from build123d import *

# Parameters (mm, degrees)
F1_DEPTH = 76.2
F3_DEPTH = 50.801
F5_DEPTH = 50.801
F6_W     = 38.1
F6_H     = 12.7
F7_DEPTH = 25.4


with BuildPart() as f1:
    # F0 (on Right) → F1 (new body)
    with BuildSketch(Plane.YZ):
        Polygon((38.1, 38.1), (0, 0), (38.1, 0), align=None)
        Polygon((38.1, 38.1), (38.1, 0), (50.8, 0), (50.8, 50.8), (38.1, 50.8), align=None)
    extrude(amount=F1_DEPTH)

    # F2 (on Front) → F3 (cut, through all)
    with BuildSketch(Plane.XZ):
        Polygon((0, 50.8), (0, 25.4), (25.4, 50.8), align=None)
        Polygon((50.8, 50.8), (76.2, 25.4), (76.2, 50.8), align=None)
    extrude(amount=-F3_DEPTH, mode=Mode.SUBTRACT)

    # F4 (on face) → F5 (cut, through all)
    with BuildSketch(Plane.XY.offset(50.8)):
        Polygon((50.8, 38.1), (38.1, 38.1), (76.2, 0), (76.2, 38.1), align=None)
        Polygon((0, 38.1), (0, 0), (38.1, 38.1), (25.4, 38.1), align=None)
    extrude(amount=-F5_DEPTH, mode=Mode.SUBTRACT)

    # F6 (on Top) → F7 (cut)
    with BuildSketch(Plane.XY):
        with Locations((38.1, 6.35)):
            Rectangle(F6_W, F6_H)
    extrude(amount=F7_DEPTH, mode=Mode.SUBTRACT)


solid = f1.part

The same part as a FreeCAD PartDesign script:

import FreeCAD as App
import Part
import Sketcher
Q = App.Units.Quantity


def add_polygon(sketch, points):
    """Adds a closed chain of lines whose ends are joined by coincident constraints."""
    first, n = sketch.GeometryCount, len(points)
    for a, b in zip(points, points[1:] + points[:1]):
        sketch.addGeometry(Part.LineSegment(App.Vector(*a, 0), App.Vector(*b, 0)), False)
    for i in range(n):
        sketch.addConstraint(Sketcher.Constraint("Coincident", first + i, 2, first + (i + 1) % n, 1))

doc = App.newDocument("Part")
body = doc.addObject("PartDesign::Body", "Body")
body.AllowCompound = True

# Sketch on YZ plane
sketch1 = body.newObject("Sketcher::SketchObject", "Sketch")
sketch1.AttachmentSupport = (doc.getObject("YZ_Plane"), [""])
sketch1.MapMode = "FlatFace"
add_polygon(sketch1, [(38, 38), (0, 0), (51, 0), (51, 51), (38, 51)])  # lines 0-4
sketch1.addConstraint([
    Sketcher.Constraint("Horizontal", 1),
    Sketcher.Constraint("Vertical", 2),
    Sketcher.Constraint("Horizontal", 3),
    Sketcher.Constraint("Vertical", 4),
    Sketcher.Constraint("Coincident", 0, 2, -1, 1),
    Sketcher.Constraint("Equal", 1, 2),
    Sketcher.Constraint("Equal", 3, 4),
    Sketcher.Constraint("DistanceX", 1, 1, 1, 2, Q("2 in")),
    Sketcher.Constraint("DistanceX", 3, 2, 3, 1, Q("0.5 in")),
])
pad1 = body.newObject("PartDesign::Pad", "Pad")
pad1.Profile = sketch1
pad1.Length = Q("3 in")

# Sketch on XZ plane
sketch2 = body.newObject("Sketcher::SketchObject", "Sketch001")
sketch2.AttachmentSupport = (doc.getObject("XZ_Plane"), [""])
sketch2.MapMode = "FlatFace"
add_polygon(sketch2, [(0, 51), (0, 25), (25, 51)])  # lines 0-2
add_polygon(sketch2, [(51, 51), (76, 25), (76, 51)])  # lines 3-5
sketch2.addConstraint([
    Sketcher.Constraint("Vertical", 0),
    Sketcher.Constraint("Horizontal", 2),
    Sketcher.Constraint("Vertical", 4),
    Sketcher.Constraint("Horizontal", 5),
    Sketcher.Constraint("PointOnObject", 0, 2, -2),
    Sketcher.Constraint("Perpendicular", 1, 3),
    Sketcher.Constraint("Horizontal", 0, 2, 3, 2),
    Sketcher.Constraint("Horizontal", 2, 2, 4, 2),
    Sketcher.Constraint("Equal", 2, 5),
    Sketcher.Constraint("DistanceX", 2, 2, 2, 1, Q("1 in")),
    Sketcher.Constraint("DistanceY", -1, 1, 0, 2, Q("1 in")),
    Sketcher.Constraint("DistanceX", -1, 1, 3, 2, Q("3 in")),
])
pocket1 = body.newObject("PartDesign::Pocket", "Pocket")
pocket1.Profile = sketch2
pocket1.Type = "ThroughAll"

# Sketch on XY plane
sketch3 = body.newObject("Sketcher::SketchObject", "Sketch002")
sketch3.AttachmentSupport = (doc.getObject("XY_Plane"), [""])
sketch3.MapMode = "FlatFace"
sketch3.AttachmentOffset = App.Placement(App.Vector(0, 0, 2 * 25.4), App.Rotation())
add_polygon(sketch3, [(38, 38), (76, 0), (76, 38)])  # lines 0-2
add_polygon(sketch3, [(0, 38), (0, 0), (38, 38)])  # lines 3-5
sketch3.addConstraint([
    Sketcher.Constraint("Vertical", 1),
    Sketcher.Constraint("Horizontal", 2),
    Sketcher.Constraint("Vertical", 3),
    Sketcher.Constraint("Horizontal", 5),
    Sketcher.Constraint("Coincident", 3, 2, -1, 1),
    Sketcher.Constraint("Coincident", 4, 2, 2, 2),
    Sketcher.Constraint("PointOnObject", 0, 2, -1),
    Sketcher.Constraint("Perpendicular", 0, 4),
    Sketcher.Constraint("Equal", 2, 5),
    Sketcher.Constraint("DistanceX", 2, 2, 2, 1, Q("1.5 in")),
])
pocket2 = body.newObject("PartDesign::Pocket", "Pocket001")
pocket2.Profile = sketch3
pocket2.Type = "ThroughAll"

# Sketch on XY plane
sketch4 = body.newObject("Sketcher::SketchObject", "Sketch003")
sketch4.AttachmentSupport = (doc.getObject("XY_Plane"), [""])
sketch4.MapMode = "FlatFace"
add_polygon(sketch4, [(19, 13), (19, 0), (57, 0), (57, 13)])  # lines 0-3
sketch4.addConstraint([
    Sketcher.Constraint("Vertical", 0),
    Sketcher.Constraint("Horizontal", 1),
    Sketcher.Constraint("Vertical", 2),
    Sketcher.Constraint("Horizontal", 3),
    Sketcher.Constraint("PointOnObject", 0, 2, -1),
    Sketcher.Constraint("DistanceX", 1, 1, 1, 2, Q("1.5 in")),
    Sketcher.Constraint("DistanceY", 0, 2, 0, 1, Q("0.5 in")),
    Sketcher.Constraint("DistanceX", -1, 1, 0, 2, Q("0.75 in")),
])
pocket3 = body.newObject("PartDesign::Pocket", "Pocket002")
pocket3.Profile = sketch4
pocket3.Length = Q("1 in")
pocket3.Reversed = True

doc.recompute()
